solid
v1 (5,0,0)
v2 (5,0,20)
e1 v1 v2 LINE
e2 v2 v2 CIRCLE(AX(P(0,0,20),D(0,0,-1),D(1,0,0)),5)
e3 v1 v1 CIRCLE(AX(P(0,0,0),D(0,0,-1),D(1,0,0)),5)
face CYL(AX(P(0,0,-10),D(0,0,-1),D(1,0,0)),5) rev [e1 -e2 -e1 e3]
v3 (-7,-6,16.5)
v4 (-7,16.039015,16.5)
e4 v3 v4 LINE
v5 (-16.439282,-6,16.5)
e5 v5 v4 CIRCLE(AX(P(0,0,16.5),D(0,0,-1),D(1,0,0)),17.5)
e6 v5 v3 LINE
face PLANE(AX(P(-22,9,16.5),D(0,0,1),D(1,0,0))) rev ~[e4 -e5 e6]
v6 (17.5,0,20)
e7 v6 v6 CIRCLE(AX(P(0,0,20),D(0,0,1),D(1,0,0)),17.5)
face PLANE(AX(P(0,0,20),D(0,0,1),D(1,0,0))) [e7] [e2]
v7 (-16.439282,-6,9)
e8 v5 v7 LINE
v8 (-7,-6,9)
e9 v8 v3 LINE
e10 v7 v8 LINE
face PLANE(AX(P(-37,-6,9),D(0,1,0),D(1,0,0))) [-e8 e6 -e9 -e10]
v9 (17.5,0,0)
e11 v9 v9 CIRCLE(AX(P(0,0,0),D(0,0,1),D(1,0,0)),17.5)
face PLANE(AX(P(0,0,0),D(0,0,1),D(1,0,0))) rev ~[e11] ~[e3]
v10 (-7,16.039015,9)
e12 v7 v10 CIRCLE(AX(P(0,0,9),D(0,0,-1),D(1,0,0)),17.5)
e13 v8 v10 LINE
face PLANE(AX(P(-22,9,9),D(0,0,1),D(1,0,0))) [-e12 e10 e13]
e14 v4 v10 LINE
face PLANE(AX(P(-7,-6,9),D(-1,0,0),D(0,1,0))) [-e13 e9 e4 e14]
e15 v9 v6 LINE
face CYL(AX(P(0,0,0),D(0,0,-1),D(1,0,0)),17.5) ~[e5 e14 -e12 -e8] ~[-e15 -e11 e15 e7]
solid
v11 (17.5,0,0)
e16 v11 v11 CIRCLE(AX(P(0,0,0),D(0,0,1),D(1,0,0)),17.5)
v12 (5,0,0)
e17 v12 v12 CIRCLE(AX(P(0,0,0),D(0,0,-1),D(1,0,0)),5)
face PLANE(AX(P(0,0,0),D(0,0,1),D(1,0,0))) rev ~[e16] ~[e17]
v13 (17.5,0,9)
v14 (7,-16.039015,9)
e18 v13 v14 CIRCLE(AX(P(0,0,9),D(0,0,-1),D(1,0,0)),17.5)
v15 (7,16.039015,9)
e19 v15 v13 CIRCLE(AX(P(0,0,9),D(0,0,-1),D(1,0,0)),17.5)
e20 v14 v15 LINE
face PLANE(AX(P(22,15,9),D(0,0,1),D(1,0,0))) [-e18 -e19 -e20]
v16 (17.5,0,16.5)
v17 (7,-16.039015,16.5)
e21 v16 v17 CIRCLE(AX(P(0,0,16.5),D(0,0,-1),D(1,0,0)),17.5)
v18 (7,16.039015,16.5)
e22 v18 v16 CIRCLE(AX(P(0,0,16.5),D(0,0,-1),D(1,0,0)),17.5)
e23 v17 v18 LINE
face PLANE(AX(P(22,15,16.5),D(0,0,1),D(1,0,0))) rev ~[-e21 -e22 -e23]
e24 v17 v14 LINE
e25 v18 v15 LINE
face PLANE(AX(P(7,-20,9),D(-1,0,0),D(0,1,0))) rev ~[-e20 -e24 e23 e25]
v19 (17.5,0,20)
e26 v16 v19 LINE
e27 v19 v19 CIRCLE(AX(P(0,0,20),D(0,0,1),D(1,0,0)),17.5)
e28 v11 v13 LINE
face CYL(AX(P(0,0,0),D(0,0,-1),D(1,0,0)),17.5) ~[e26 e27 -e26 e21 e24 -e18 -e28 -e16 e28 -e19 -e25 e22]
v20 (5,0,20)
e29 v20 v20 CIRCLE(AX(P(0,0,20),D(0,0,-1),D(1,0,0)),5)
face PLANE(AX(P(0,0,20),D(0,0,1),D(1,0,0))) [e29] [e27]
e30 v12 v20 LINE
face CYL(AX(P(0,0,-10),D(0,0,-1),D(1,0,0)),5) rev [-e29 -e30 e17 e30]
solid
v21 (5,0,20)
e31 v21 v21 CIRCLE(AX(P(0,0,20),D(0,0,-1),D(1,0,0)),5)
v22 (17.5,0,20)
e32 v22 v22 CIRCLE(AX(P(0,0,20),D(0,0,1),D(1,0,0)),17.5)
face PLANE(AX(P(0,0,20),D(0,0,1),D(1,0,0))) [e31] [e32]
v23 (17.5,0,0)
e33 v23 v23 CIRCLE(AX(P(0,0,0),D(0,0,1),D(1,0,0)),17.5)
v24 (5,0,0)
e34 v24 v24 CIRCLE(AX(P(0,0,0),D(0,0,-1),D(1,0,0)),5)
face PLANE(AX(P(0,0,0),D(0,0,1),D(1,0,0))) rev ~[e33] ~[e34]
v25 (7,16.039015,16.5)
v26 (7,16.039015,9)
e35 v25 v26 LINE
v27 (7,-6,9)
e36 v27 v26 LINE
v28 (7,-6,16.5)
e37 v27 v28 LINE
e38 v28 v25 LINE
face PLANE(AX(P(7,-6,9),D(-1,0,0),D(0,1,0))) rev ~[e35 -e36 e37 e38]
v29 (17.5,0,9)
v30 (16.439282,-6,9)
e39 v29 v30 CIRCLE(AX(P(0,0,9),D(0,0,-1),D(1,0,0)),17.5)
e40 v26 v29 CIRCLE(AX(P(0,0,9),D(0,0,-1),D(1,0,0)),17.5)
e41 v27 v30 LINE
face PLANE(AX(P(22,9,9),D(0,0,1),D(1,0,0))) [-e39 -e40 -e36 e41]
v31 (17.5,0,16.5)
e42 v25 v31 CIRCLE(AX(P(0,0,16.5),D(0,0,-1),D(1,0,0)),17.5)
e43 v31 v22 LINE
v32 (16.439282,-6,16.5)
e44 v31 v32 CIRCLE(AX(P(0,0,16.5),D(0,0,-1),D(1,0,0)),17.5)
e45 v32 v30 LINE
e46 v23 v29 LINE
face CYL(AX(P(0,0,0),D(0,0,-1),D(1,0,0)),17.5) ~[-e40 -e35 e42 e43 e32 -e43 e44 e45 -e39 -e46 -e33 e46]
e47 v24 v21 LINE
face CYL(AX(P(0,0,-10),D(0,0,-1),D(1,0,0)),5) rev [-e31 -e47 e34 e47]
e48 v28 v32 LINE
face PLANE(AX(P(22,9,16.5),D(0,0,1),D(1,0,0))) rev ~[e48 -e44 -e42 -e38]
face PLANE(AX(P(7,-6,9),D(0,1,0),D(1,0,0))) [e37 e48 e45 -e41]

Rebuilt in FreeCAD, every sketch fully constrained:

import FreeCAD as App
import Part
import Sketcher
from FreeCAD import Vector
Q = App.Units.Quantity

doc = App.newDocument("Part")
params = doc.addObject("Spreadsheet::Sheet", "Params")
for row, (alias, value) in enumerate([
    ("sketch1_width", "30 mm"),
    ("pad1_length", "7.5 mm"),
    ("sketch2_diameter", "10 mm"),
    ("pad2_length", "40 mm"),
    ("sketch3_diameter", "35 mm"),
    ("pad3_length", "20 mm"),
    ("sketch4_width", "30 mm"),
    ("sketch4_height", "70 mm"),
    ("pad4_length", "7.5 mm"),
    ("sketch5_diameter", "10 mm"),
    ("pad5_length", "40 mm"),
    ("sketch6_diameter", "35 mm"),
    ("pad6_length", "20 mm"),
    ("sketch7_width", "30 mm"),
    ("pad7_length", "7.5 mm"),
    ("sketch8_diameter", "10 mm"),
    ("pad8_length", "40 mm"),
    ("sketch9_diameter", "35 mm"),
    ("pad9_length", "20 mm"),
], start=1):
    params.set(f"A{row}", alias)
    params.set(f"B{row}", "=" + value)
    params.setAlias(f"B{row}", alias)

body = doc.addObject("PartDesign::Body", "Body")

# Sketch on XY plane
sketch1 = doc.addObject("Sketcher::SketchObject", "Sketch")
body.addObject(sketch1)
sketch1.AttachmentSupport = (doc.XY_Plane, [""])
sketch1.MapMode = "FlatFace"
sketch1.AttachmentOffset = App.Placement(Vector(0, 0, 9), App.Rotation())
sketch1.addGeometry(Part.LineSegment(Vector(7, 24, 0), Vector(7, -6, 0)), False)
sketch1.addGeometry(Part.LineSegment(Vector(7, -6, 0), Vector(37, -6, 0)), False)
sketch1.addGeometry(Part.LineSegment(Vector(37, -6, 0), Vector(37, 24, 0)), False)
sketch1.addGeometry(Part.LineSegment(Vector(37, 24, 0), Vector(7, 24, 0)), False)
sketch1.addConstraint(Sketcher.Constraint("Coincident", 0, 2, 1, 1))
sketch1.addConstraint(Sketcher.Constraint("Coincident", 1, 2, 2, 1))
sketch1.addConstraint(Sketcher.Constraint("Coincident", 2, 2, 3, 1))
sketch1.addConstraint(Sketcher.Constraint("Coincident", 3, 2, 0, 1))
sketch1.addConstraint(Sketcher.Constraint("Vertical", 0))
sketch1.addConstraint(Sketcher.Constraint("Horizontal", 1))
sketch1.addConstraint(Sketcher.Constraint("Vertical", 2))
sketch1.addConstraint(Sketcher.Constraint("Horizontal", 3))
sketch1.addConstraint(Sketcher.Constraint("Equal", 3, 0))
sketch1.addConstraint(Sketcher.Constraint("DistanceX", 1, 1, 1, 2, Q("30 mm")))
sketch1.addConstraint(Sketcher.Constraint("DistanceX", -1, 1, 0, 2, Q("7 mm")))
sketch1.addConstraint(Sketcher.Constraint("DistanceY", 0, 2, -1, 1, Q("6 mm")))
sketch1.setExpression("Constraints[9]", "Params.sketch1_width")
pad1 = doc.addObject("PartDesign::Pad", "Pad")
body.addObject(pad1)
pad1.Profile = sketch1
pad1.setExpression("Length", "Params.pad1_length")
body2 = doc.addObject("PartDesign::Body", "Body001")

# Sketch on XY plane
sketch2 = doc.addObject("Sketcher::SketchObject", "Sketch001")
body2.addObject(sketch2)
sketch2.AttachmentSupport = (doc.getObject("XY_Plane001"), [""])
sketch2.MapMode = "FlatFace"
sketch2.AttachmentOffset = App.Placement(Vector(0, 0, -10), App.Rotation())
sketch2.addGeometry(Part.Circle(Vector(0, 0, 0), Vector(0, 0, 1), 5), False)
sketch2.addConstraint(Sketcher.Constraint("Coincident", 0, 3, -1, 1))
sketch2.addConstraint(Sketcher.Constraint("Diameter", 0, Q("10 mm")))
sketch2.setExpression("Constraints[1]", "Params.sketch2_diameter")
pad2 = doc.addObject("PartDesign::Pad", "Pad001")
body2.addObject(pad2)
pad2.Profile = sketch2
pad2.setExpression("Length", "Params.pad2_length")
body3 = doc.addObject("PartDesign::Body", "Body002")

# Sketch on XY plane
sketch3 = doc.addObject("Sketcher::SketchObject", "Sketch002")
body3.addObject(sketch3)
sketch3.AttachmentSupport = (doc.getObject("XY_Plane002"), [""])
sketch3.MapMode = "FlatFace"
sketch3.addGeometry(Part.Circle(Vector(0, 0, 0), Vector(0, 0, 1), 18), False)
sketch3.addConstraint(Sketcher.Constraint("Coincident", 0, 3, -1, 1))
sketch3.addConstraint(Sketcher.Constraint("Diameter", 0, Q("35 mm")))
sketch3.setExpression("Constraints[1]", "Params.sketch3_diameter")
pad3 = doc.addObject("PartDesign::Pad", "Pad002")
body3.addObject(pad3)
pad3.Profile = sketch3
pad3.setExpression("Length", "Params.pad3_length")
doc.recompute()

boolean = doc.addObject("PartDesign::Boolean", "Boolean")
body3.addObject(boolean)
boolean.Type = "Cut"
boolean.addObjects([body2])
doc.recompute()

boolean2 = doc.addObject("PartDesign::Boolean", "Boolean001")
body3.addObject(boolean2)
boolean2.Type = "Cut"
boolean2.addObjects([body])
body4 = doc.addObject("PartDesign::Body", "Body003")

# Sketch on XY plane
sketch4 = doc.addObject("Sketcher::SketchObject", "Sketch003")
body4.addObject(sketch4)
sketch4.AttachmentSupport = (doc.getObject("XY_Plane003"), [""])
sketch4.MapMode = "FlatFace"
sketch4.AttachmentOffset = App.Placement(Vector(0, 0, 9), App.Rotation())
sketch4.addGeometry(Part.LineSegment(Vector(7, 50, 0), Vector(7, -20, 0)), False)
sketch4.addGeometry(Part.LineSegment(Vector(7, -20, 0), Vector(37, -20, 0)), False)
sketch4.addGeometry(Part.LineSegment(Vector(37, -20, 0), Vector(37, 50, 0)), False)
sketch4.addGeometry(Part.LineSegment(Vector(37, 50, 0), Vector(7, 50, 0)), False)
sketch4.addConstraint(Sketcher.Constraint("Coincident", 0, 2, 1, 1))
sketch4.addConstraint(Sketcher.Constraint("Coincident", 1, 2, 2, 1))
sketch4.addConstraint(Sketcher.Constraint("Coincident", 2, 2, 3, 1))
sketch4.addConstraint(Sketcher.Constraint("Coincident", 3, 2, 0, 1))
sketch4.addConstraint(Sketcher.Constraint("Vertical", 0))
sketch4.addConstraint(Sketcher.Constraint("Horizontal", 1))
sketch4.addConstraint(Sketcher.Constraint("Vertical", 2))
sketch4.addConstraint(Sketcher.Constraint("Horizontal", 3))
sketch4.addConstraint(Sketcher.Constraint("DistanceX", 1, 1, 1, 2, Q("30 mm")))
sketch4.addConstraint(Sketcher.Constraint("DistanceY", 0, 2, 0, 1, Q("70 mm")))
sketch4.addConstraint(Sketcher.Constraint("DistanceX", -1, 1, 0, 2, Q("7 mm")))
sketch4.addConstraint(Sketcher.Constraint("DistanceY", 0, 2, -1, 1, Q("20 mm")))
sketch4.setExpression("Constraints[8]", "Params.sketch4_width")
sketch4.setExpression("Constraints[9]", "Params.sketch4_height")
pad4 = doc.addObject("PartDesign::Pad", "Pad003")
body4.addObject(pad4)
pad4.Profile = sketch4
pad4.setExpression("Length", "Params.pad4_length")
body5 = doc.addObject("PartDesign::Body", "Body004")

# Sketch on XY plane
sketch5 = doc.addObject("Sketcher::SketchObject", "Sketch004")
body5.addObject(sketch5)
sketch5.AttachmentSupport = (doc.getObject("XY_Plane004"), [""])
sketch5.MapMode = "FlatFace"
sketch5.AttachmentOffset = App.Placement(Vector(0, 0, -10), App.Rotation())
sketch5.addGeometry(Part.Circle(Vector(0, 0, 0), Vector(0, 0, 1), 5), False)
sketch5.addConstraint(Sketcher.Constraint("Coincident", 0, 3, -1, 1))
sketch5.addConstraint(Sketcher.Constraint("Diameter", 0, Q("10 mm")))
sketch5.setExpression("Constraints[1]", "Params.sketch5_diameter")
pad5 = doc.addObject("PartDesign::Pad", "Pad004")
body5.addObject(pad5)
pad5.Profile = sketch5
pad5.setExpression("Length", "Params.pad5_length")
body6 = doc.addObject("PartDesign::Body", "Body005")

# Sketch on XY plane
sketch6 = doc.addObject("Sketcher::SketchObject", "Sketch005")
body6.addObject(sketch6)
sketch6.AttachmentSupport = (doc.getObject("XY_Plane005"), [""])
sketch6.MapMode = "FlatFace"
sketch6.addGeometry(Part.Circle(Vector(0, 0, 0), Vector(0, 0, 1), 18), False)
sketch6.addConstraint(Sketcher.Constraint("Coincident", 0, 3, -1, 1))
sketch6.addConstraint(Sketcher.Constraint("Diameter", 0, Q("35 mm")))
sketch6.setExpression("Constraints[1]", "Params.sketch6_diameter")
pad6 = doc.addObject("PartDesign::Pad", "Pad005")
body6.addObject(pad6)
pad6.Profile = sketch6
pad6.setExpression("Length", "Params.pad6_length")
doc.recompute()

boolean3 = doc.addObject("PartDesign::Boolean", "Boolean002")
body6.addObject(boolean3)
boolean3.Type = "Cut"
boolean3.addObjects([body5])
doc.recompute()

boolean4 = doc.addObject("PartDesign::Boolean", "Boolean003")
body6.addObject(boolean4)
boolean4.Type = "Cut"
boolean4.addObjects([body4])
body7 = doc.addObject("PartDesign::Body", "Body006")

# Sketch on XY plane
sketch7 = doc.addObject("Sketcher::SketchObject", "Sketch006")
body7.addObject(sketch7)
sketch7.AttachmentSupport = (doc.getObject("XY_Plane006"), [""])
sketch7.MapMode = "FlatFace"
sketch7.AttachmentOffset = App.Placement(Vector(0, 0, 9), App.Rotation())
sketch7.addGeometry(Part.LineSegment(Vector(-37, 24, 0), Vector(-37, -6, 0)), False)
sketch7.addGeometry(Part.LineSegment(Vector(-37, -6, 0), Vector(-7, -6, 0)), False)
sketch7.addGeometry(Part.LineSegment(Vector(-7, -6, 0), Vector(-7, 24, 0)), False)
sketch7.addGeometry(Part.LineSegment(Vector(-7, 24, 0), Vector(-37, 24, 0)), False)
sketch7.addConstraint(Sketcher.Constraint("Coincident", 0, 2, 1, 1))
sketch7.addConstraint(Sketcher.Constraint("Coincident", 1, 2, 2, 1))
sketch7.addConstraint(Sketcher.Constraint("Coincident", 2, 2, 3, 1))
sketch7.addConstraint(Sketcher.Constraint("Coincident", 3, 2, 0, 1))
sketch7.addConstraint(Sketcher.Constraint("Vertical", 0))
sketch7.addConstraint(Sketcher.Constraint("Horizontal", 1))
sketch7.addConstraint(Sketcher.Constraint("Vertical", 2))
sketch7.addConstraint(Sketcher.Constraint("Horizontal", 3))
sketch7.addConstraint(Sketcher.Constraint("Equal", 3, 0))
sketch7.addConstraint(Sketcher.Constraint("DistanceX", 1, 1, 1, 2, Q("30 mm")))
sketch7.addConstraint(Sketcher.Constraint("DistanceX", 0, 2, -1, 1, Q("37 mm")))
sketch7.addConstraint(Sketcher.Constraint("DistanceY", 0, 2, -1, 1, Q("6 mm")))
sketch7.setExpression("Constraints[9]", "Params.sketch7_width")
pad7 = doc.addObject("PartDesign::Pad", "Pad006")
body7.addObject(pad7)
pad7.Profile = sketch7
pad7.setExpression("Length", "Params.pad7_length")
body8 = doc.addObject("PartDesign::Body", "Body007")

# Sketch on XY plane
sketch8 = doc.addObject("Sketcher::SketchObject", "Sketch007")
body8.addObject(sketch8)
sketch8.AttachmentSupport = (doc.getObject("XY_Plane007"), [""])
sketch8.MapMode = "FlatFace"
sketch8.AttachmentOffset = App.Placement(Vector(0, 0, -10), App.Rotation())
sketch8.addGeometry(Part.Circle(Vector(0, 0, 0), Vector(0, 0, 1), 5), False)
sketch8.addConstraint(Sketcher.Constraint("Coincident", 0, 3, -1, 1))
sketch8.addConstraint(Sketcher.Constraint("Diameter", 0, Q("10 mm")))
sketch8.setExpression("Constraints[1]", "Params.sketch8_diameter")
pad8 = doc.addObject("PartDesign::Pad", "Pad007")
body8.addObject(pad8)
pad8.Profile = sketch8
pad8.setExpression("Length", "Params.pad8_length")
body9 = doc.addObject("PartDesign::Body", "Body008")

# Sketch on XY plane
sketch9 = doc.addObject("Sketcher::SketchObject", "Sketch008")
body9.addObject(sketch9)
sketch9.AttachmentSupport = (doc.getObject("XY_Plane008"), [""])
sketch9.MapMode = "FlatFace"
sketch9.addGeometry(Part.Circle(Vector(0, 0, 0), Vector(0, 0, 1), 18), False)
sketch9.addConstraint(Sketcher.Constraint("Coincident", 0, 3, -1, 1))
sketch9.addConstraint(Sketcher.Constraint("Diameter", 0, Q("35 mm")))
sketch9.setExpression("Constraints[1]", "Params.sketch9_diameter")
pad9 = doc.addObject("PartDesign::Pad", "Pad008")
body9.addObject(pad9)
pad9.Profile = sketch9
pad9.setExpression("Length", "Params.pad9_length")
doc.recompute()

boolean5 = doc.addObject("PartDesign::Boolean", "Boolean004")
body9.addObject(boolean5)
boolean5.Type = "Cut"
boolean5.addObjects([body8])
doc.recompute()

boolean6 = doc.addObject("PartDesign::Boolean", "Boolean005")
body9.addObject(boolean6)
boolean6.Type = "Cut"
boolean6.addObjects([body7])

doc.recompute()
